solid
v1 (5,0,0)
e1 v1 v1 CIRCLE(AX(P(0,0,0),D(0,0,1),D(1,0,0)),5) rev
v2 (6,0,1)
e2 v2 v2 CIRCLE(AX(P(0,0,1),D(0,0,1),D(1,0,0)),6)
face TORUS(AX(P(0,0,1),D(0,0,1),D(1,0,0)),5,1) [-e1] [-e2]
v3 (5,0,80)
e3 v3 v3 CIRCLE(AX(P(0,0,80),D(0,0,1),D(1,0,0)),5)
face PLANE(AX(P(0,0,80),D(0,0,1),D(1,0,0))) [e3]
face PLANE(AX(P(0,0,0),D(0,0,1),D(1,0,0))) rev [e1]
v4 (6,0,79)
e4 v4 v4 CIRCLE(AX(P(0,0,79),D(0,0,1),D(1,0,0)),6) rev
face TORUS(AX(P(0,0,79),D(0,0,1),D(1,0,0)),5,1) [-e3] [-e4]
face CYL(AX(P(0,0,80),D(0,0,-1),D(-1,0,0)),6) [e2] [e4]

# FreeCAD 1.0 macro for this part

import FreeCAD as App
import Part
import Sketcher


def edges_at(feature, points):
    """Names of the edges that pass closest to the given points."""
    edges = feature.Shape.Edges
    near = lambda p: min(range(len(edges)), key=lambda i: edges[i].distToShape(Part.Vertex(*p))[0])
    return sorted({f"Edge{near(p) + 1}" for p in points})

doc = App.newDocument("Part")
body = doc.addObject("PartDesign::Body", "Body")

sketch1 = body.newObject("Sketcher::SketchObject", "Sketch")
sketch1.AttachmentSupport = (doc.getObject("XY_Plane"), [""])
sketch1.MapMode = "FlatFace"
sketch1.addGeometry(Part.Circle(App.Vector(0, 0, 0), App.Vector(0, 0, 1), 6), False)
sketch1.addConstraint([
    Sketcher.Constraint("Coincident", 0, 3, -1, 1),
    Sketcher.Constraint("Diameter", 0, 12.0),
])
pad1 = body.newObject("PartDesign::Pad", "Pad")
pad1.Profile = sketch1
pad1.Length = 80
doc.recompute()

fillet = body.newObject("PartDesign::Fillet", "Fillet")
fillet.Base = (pad1, edges_at(pad1, [(-6, 0, 0), (-6, 0, 80)]))
fillet.Radius = 1

doc.recompute()
